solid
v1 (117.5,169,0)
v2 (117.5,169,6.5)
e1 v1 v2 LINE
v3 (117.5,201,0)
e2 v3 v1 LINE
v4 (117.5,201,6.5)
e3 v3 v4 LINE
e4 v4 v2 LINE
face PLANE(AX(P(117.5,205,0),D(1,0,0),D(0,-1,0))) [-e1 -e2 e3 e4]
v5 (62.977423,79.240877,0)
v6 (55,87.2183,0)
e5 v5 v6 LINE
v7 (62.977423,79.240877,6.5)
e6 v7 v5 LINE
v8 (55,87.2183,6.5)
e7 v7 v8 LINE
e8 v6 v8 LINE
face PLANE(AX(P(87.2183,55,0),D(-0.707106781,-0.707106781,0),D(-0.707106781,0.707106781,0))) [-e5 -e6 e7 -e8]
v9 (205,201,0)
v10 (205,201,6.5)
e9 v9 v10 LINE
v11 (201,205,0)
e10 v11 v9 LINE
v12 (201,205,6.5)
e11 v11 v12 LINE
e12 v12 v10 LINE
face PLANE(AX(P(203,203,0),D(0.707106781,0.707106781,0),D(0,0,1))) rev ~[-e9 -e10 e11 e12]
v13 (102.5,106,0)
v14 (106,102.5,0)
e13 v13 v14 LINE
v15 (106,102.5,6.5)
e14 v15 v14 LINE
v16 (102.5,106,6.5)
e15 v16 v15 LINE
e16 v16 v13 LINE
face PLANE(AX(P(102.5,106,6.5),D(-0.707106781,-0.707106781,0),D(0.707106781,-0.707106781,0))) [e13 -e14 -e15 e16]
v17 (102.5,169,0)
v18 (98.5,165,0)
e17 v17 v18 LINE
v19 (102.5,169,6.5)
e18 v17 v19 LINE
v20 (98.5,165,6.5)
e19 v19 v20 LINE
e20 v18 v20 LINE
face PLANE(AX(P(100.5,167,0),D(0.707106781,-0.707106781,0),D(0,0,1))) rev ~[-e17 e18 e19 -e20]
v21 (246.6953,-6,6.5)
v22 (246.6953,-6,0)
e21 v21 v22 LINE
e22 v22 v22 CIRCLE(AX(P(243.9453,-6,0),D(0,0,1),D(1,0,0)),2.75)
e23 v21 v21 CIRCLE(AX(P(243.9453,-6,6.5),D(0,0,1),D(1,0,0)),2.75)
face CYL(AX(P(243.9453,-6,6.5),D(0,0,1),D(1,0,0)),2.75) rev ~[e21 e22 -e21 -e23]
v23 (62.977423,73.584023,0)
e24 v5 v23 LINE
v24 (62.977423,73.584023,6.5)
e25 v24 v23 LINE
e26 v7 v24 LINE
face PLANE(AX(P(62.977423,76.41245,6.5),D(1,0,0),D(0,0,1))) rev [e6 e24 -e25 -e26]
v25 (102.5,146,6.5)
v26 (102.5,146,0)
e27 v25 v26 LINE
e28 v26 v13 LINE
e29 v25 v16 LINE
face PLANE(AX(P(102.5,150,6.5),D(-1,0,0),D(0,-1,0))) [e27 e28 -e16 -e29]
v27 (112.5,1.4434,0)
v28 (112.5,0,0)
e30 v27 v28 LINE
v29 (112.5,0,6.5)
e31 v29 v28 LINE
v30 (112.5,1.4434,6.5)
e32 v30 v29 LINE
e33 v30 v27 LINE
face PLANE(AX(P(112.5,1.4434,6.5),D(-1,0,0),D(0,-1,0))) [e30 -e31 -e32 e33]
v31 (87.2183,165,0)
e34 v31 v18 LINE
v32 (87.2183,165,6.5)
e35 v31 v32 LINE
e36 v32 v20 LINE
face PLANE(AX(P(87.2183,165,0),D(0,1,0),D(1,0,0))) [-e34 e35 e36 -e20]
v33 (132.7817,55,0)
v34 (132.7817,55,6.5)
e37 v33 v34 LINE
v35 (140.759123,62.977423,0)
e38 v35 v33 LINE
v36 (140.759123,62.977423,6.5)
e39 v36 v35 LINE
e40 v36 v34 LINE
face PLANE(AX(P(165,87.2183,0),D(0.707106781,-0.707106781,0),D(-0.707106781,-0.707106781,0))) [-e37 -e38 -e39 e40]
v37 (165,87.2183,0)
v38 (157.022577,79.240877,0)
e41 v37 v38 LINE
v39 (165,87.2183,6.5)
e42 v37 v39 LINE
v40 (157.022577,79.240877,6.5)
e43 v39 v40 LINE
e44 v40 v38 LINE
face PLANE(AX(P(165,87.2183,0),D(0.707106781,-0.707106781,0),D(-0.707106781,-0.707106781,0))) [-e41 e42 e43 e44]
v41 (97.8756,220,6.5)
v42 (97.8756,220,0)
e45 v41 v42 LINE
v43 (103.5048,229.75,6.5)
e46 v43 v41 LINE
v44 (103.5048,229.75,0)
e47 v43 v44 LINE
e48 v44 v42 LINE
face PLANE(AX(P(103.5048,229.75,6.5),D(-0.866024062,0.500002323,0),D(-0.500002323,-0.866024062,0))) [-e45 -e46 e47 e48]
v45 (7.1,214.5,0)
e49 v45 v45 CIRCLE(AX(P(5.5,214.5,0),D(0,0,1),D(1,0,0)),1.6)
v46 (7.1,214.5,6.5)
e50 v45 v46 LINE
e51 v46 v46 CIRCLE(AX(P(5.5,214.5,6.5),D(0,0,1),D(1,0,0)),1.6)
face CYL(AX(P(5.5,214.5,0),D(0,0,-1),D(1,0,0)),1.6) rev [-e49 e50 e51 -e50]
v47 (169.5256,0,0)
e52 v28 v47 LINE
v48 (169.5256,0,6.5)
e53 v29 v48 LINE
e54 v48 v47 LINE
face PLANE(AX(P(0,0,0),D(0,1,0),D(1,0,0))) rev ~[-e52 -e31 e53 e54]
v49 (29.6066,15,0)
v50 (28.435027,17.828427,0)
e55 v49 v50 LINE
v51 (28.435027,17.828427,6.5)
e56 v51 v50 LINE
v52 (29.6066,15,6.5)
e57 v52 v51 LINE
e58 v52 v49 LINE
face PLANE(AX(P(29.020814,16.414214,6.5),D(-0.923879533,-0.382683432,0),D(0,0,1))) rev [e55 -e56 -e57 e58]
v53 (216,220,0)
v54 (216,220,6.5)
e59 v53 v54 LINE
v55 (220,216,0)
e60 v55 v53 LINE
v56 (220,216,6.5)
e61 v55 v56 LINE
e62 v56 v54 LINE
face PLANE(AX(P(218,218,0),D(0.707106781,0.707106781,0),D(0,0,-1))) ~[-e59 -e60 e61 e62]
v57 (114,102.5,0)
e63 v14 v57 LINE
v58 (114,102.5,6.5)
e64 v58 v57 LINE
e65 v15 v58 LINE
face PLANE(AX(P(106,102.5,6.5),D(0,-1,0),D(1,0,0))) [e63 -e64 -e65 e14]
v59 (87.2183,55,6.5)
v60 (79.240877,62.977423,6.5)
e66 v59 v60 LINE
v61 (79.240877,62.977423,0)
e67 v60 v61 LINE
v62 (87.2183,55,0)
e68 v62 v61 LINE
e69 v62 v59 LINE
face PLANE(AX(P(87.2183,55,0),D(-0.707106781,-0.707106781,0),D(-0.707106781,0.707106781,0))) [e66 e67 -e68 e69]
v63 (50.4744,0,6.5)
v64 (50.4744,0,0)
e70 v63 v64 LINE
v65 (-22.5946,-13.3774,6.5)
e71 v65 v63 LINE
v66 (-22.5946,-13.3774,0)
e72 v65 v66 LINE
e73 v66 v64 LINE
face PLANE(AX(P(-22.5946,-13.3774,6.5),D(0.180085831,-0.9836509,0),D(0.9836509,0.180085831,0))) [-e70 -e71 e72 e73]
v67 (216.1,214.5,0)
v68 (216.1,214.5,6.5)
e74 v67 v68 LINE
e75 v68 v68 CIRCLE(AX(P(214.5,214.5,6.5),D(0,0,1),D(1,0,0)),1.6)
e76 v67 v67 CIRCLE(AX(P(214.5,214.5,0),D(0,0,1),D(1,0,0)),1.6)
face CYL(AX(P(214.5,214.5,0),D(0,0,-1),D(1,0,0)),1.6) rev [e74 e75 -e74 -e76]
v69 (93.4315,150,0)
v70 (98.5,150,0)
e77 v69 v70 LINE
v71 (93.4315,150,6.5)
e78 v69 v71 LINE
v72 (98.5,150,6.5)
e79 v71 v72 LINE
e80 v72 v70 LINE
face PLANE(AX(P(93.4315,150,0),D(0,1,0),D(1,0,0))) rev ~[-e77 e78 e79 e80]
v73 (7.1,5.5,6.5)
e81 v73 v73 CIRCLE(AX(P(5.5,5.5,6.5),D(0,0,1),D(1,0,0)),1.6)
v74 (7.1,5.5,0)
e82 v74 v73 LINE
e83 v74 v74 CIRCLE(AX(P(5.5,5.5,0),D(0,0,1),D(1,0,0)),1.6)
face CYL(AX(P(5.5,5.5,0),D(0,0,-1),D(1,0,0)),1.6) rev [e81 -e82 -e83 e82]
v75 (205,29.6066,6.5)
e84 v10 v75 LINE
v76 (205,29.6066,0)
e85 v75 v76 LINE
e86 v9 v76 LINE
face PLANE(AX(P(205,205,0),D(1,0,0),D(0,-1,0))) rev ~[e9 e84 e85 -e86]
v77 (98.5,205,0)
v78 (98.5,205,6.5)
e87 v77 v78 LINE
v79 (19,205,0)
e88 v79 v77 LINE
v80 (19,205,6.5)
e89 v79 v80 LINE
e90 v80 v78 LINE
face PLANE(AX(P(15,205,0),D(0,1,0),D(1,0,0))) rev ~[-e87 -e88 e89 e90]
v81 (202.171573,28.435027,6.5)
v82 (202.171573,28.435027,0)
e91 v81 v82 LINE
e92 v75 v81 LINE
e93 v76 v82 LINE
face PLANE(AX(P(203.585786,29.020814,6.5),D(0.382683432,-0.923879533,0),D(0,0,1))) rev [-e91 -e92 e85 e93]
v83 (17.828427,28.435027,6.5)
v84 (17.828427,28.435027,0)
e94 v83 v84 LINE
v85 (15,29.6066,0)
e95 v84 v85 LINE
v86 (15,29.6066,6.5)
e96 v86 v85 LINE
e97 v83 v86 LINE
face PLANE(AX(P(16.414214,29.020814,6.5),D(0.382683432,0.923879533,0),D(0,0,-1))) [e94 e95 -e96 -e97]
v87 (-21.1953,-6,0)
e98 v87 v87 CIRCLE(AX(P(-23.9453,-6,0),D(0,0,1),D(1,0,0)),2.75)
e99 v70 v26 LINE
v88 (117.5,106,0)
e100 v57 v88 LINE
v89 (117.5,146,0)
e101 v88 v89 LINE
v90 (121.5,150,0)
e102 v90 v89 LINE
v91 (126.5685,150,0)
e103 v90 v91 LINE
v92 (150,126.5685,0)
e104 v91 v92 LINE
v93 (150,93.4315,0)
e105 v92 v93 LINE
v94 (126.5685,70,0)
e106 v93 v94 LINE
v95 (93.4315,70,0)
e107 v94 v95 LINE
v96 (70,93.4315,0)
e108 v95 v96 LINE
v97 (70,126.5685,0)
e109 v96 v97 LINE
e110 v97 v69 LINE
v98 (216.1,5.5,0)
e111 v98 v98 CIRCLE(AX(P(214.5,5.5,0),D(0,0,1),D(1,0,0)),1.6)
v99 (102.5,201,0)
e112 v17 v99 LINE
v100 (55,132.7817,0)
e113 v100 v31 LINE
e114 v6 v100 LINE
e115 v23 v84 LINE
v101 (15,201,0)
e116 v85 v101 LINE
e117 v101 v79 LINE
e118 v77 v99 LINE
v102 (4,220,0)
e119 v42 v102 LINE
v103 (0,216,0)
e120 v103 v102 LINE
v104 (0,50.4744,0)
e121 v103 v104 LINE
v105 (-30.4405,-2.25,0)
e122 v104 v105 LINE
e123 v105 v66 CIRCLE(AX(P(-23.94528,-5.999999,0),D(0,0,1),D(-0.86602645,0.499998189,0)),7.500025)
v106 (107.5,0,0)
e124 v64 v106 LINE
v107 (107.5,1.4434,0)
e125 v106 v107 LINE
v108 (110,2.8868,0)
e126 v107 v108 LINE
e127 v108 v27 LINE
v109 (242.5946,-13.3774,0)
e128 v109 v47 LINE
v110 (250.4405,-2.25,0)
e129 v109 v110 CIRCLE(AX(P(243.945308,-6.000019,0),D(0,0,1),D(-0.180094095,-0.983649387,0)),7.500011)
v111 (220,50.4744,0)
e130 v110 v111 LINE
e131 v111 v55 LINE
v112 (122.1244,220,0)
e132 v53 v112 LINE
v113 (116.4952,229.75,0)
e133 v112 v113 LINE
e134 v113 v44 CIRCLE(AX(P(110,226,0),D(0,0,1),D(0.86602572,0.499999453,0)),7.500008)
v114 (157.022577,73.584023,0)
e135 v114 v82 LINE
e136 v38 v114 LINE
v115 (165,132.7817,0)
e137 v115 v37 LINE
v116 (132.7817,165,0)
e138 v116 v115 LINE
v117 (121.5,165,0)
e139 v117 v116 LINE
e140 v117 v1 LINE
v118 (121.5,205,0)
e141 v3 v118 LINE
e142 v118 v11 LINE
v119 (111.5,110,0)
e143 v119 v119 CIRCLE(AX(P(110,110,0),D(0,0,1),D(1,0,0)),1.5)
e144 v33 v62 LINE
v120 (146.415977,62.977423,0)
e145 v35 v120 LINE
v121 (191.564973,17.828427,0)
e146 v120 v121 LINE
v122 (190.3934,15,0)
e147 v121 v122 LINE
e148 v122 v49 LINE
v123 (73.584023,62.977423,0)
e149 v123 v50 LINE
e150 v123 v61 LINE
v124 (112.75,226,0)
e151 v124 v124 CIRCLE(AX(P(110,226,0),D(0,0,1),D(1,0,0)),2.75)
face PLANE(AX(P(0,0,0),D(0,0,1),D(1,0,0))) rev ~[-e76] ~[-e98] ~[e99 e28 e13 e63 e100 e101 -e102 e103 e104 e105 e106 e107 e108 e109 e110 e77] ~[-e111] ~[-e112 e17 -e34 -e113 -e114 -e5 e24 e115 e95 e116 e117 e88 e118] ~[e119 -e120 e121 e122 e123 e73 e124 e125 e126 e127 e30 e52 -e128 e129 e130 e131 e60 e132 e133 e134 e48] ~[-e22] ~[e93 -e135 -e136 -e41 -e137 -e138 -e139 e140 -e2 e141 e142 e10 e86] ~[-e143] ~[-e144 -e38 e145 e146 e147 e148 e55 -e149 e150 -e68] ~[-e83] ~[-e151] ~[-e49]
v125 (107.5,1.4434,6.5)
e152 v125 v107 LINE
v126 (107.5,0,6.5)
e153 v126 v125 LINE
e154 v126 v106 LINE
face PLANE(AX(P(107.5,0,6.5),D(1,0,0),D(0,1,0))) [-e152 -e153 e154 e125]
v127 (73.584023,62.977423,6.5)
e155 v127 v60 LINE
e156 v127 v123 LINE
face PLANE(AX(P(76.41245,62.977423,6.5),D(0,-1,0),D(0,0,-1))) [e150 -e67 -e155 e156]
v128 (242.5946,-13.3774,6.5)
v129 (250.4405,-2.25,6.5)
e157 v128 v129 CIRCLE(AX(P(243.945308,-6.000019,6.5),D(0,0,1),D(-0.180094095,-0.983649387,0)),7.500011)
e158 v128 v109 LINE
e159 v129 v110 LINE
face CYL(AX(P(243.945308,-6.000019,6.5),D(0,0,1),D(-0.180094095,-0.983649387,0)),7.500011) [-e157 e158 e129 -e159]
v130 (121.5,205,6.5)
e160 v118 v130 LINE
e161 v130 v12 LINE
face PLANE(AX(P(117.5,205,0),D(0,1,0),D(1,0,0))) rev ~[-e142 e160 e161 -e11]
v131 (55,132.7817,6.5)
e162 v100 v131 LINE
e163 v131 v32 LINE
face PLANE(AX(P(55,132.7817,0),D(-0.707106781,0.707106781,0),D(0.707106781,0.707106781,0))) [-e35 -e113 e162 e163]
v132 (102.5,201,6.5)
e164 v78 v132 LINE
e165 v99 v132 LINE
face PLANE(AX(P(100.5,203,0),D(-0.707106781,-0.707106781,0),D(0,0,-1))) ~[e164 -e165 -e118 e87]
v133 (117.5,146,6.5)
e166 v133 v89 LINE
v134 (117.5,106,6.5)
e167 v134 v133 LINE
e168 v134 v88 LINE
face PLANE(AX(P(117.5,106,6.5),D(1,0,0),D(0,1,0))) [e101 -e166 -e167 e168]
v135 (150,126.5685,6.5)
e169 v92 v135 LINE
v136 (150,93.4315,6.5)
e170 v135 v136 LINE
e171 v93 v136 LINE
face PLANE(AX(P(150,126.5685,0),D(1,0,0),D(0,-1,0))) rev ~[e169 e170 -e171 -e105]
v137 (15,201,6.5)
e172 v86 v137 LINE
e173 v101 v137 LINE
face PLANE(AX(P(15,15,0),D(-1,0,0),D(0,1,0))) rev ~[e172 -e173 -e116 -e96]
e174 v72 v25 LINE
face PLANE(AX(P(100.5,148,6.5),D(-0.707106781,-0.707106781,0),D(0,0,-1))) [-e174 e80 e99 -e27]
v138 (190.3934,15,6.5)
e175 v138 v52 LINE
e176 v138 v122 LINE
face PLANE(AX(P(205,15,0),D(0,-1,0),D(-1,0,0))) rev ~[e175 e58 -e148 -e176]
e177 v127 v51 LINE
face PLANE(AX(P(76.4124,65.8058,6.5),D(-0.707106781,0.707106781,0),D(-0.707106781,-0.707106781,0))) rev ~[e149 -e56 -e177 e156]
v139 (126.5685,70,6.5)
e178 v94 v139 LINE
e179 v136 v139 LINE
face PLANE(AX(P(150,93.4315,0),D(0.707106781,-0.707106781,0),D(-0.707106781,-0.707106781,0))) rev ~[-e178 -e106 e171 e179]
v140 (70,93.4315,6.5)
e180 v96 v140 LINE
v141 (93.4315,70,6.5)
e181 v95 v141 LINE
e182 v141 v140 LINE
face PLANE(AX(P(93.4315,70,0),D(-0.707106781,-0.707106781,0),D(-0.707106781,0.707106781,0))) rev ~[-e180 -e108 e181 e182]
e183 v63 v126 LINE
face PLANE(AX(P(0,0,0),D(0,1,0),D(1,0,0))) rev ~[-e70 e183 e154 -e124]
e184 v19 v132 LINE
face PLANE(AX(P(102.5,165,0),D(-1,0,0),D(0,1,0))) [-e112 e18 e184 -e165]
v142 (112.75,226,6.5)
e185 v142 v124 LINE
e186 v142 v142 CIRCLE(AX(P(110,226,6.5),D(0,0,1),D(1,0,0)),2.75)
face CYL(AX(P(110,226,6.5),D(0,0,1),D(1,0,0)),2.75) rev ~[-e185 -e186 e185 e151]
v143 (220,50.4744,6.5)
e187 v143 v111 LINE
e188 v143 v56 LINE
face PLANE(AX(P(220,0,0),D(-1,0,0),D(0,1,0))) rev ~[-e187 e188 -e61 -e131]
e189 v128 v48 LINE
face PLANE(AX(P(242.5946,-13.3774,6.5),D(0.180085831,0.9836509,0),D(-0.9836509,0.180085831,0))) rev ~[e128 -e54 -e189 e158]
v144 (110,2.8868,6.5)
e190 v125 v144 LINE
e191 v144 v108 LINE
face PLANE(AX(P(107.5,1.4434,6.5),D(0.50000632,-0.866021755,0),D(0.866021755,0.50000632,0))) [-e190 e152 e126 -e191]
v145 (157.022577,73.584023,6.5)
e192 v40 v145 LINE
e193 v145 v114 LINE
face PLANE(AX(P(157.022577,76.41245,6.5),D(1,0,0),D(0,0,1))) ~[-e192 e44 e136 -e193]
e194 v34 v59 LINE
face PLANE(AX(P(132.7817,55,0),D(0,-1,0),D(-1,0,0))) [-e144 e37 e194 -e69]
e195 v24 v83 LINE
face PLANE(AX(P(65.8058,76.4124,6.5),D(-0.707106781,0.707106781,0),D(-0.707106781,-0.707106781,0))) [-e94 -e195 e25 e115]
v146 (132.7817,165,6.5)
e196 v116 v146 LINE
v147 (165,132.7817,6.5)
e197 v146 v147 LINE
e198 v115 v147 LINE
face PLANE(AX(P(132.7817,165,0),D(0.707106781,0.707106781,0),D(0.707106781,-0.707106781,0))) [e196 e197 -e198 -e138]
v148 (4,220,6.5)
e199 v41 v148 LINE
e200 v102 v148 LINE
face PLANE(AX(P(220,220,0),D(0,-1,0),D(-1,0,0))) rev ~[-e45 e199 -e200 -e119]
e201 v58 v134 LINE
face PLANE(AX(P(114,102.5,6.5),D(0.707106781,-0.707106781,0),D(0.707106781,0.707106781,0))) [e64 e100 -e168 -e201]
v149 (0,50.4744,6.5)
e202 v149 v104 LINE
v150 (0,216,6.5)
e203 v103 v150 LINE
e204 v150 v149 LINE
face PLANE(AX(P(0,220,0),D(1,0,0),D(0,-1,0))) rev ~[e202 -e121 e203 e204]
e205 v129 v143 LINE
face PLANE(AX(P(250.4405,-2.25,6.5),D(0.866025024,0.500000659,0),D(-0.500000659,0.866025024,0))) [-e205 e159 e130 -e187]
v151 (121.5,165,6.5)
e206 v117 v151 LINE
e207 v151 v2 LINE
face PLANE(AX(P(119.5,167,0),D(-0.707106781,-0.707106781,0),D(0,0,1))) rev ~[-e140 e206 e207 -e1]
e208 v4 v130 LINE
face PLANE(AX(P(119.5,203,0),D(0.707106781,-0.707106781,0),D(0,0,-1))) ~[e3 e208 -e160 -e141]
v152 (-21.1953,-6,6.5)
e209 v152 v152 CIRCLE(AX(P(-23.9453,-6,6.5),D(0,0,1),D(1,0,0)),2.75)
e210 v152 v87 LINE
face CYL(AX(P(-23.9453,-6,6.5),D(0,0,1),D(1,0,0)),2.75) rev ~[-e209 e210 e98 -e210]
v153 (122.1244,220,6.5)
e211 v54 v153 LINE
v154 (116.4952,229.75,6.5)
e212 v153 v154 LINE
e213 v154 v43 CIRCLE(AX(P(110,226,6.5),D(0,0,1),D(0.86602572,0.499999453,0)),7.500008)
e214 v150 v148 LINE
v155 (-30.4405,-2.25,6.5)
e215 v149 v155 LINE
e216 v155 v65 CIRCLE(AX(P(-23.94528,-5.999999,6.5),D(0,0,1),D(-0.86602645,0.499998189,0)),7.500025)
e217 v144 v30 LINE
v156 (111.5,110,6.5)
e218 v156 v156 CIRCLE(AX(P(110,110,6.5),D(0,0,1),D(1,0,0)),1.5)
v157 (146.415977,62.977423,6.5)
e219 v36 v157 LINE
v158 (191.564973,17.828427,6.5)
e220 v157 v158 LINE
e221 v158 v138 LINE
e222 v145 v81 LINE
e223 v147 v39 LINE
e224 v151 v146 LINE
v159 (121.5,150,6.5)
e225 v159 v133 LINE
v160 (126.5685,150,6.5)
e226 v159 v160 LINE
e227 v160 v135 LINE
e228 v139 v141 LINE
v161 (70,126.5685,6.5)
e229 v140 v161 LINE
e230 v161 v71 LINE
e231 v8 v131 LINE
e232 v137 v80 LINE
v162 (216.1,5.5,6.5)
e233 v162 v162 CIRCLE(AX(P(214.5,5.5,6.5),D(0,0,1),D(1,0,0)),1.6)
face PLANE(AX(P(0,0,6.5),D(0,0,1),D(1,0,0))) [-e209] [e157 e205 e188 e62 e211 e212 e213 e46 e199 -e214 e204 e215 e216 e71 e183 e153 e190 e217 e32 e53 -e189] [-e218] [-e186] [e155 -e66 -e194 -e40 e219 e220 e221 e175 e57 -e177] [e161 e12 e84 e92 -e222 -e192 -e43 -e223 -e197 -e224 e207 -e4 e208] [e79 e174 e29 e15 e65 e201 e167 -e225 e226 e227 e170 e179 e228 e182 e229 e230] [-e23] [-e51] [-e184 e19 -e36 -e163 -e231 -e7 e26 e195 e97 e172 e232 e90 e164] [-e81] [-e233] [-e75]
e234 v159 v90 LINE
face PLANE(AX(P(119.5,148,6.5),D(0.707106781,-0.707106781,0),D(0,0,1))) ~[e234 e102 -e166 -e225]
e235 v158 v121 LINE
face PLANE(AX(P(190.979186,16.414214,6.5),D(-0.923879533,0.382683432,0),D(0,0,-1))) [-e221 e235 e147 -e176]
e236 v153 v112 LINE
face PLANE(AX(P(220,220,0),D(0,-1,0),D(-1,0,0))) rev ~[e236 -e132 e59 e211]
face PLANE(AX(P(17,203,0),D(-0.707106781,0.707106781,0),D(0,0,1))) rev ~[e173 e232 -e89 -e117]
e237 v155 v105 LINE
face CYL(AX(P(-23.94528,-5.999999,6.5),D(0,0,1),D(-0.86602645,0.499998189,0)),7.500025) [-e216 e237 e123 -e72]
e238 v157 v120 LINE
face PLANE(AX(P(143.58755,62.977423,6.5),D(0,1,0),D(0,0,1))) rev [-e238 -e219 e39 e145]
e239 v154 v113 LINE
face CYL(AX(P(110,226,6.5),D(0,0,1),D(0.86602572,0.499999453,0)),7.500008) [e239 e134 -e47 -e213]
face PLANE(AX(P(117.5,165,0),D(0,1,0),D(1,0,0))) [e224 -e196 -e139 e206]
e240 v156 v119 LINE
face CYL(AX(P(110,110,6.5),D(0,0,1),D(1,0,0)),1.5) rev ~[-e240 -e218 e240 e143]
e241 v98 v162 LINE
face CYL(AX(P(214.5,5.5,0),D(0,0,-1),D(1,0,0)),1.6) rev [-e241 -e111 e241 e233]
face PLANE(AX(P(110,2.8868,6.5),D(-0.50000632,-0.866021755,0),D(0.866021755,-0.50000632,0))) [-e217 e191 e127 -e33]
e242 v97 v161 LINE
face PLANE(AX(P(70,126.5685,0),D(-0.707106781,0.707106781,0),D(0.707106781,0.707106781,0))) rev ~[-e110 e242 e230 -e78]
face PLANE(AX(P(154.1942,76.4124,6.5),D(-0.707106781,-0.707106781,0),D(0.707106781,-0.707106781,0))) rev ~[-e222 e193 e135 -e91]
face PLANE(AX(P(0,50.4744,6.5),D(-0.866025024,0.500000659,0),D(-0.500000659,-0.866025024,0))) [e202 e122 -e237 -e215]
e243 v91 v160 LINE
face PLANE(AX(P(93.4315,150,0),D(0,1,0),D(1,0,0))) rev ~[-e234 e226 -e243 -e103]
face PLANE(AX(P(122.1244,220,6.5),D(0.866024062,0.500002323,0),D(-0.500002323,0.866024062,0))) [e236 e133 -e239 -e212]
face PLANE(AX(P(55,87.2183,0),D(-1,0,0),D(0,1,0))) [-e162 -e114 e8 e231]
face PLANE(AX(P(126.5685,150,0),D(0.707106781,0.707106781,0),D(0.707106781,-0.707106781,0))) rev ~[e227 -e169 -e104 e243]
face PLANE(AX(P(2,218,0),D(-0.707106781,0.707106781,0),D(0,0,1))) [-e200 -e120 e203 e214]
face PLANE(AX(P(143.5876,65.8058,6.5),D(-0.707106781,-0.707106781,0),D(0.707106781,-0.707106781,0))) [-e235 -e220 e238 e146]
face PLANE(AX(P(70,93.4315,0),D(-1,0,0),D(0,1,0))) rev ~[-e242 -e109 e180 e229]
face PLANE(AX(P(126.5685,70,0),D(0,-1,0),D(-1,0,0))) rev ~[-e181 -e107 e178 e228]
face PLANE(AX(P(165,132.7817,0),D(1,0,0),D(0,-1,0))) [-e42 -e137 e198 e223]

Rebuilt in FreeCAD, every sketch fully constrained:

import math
import FreeCAD as App
import Part
import Sketcher
Q = App.Units.Quantity


def edges_at(feature, points):
    """Names of the edges that pass closest to the given points."""
    edges = feature.Shape.Edges
    near = lambda p: min(range(len(edges)), key=lambda i: edges[i].distToShape(Part.Vertex(*p))[0])
    return sorted({f"Edge{near(p) + 1}" for p in points})

doc = App.newDocument("Part")
params = doc.addObject("Spreadsheet::Sheet", "Params")
for row, (alias, value) in enumerate([
    ("sketch1_diameter", "3.2 mm"),
    ("sketch1_width", "220 mm"),
    ("sketch1_height", "40 mm"),
    ("pad1_length", "6.5 mm"),
    ("sketch2_length", "15 mm"),
    ("pad2_length", "6.5 mm"),
    ("sketch3_diameter", "5.5 mm"),
    ("sketch3_radius", "7.5 mm"),
    ("pad3_length", "6.5 mm"),
    ("chamfer_size", "4 mm"),
    ("sketch4_diameter", "3 mm"),
    ("sketch4_width", "8 mm"),
    ("sketch4_height", "44 mm"),
    ("pad4_length", "6.5 mm"),
    ("chamfer2_size", "4 mm"),
    ("sketch5_width", "5 mm"),
], start=1):
    params.set(f"A{row}", alias)
    params.set(f"B{row}", "=" + value)
    params.setAlias(f"B{row}", alias)

body = doc.addObject("PartDesign::Body", "Body")

# Sketch on XY plane
sketch1 = body.newObject("Sketcher::SketchObject", "Sketch")
sketch1.AttachmentSupport = (doc.getObject("XY_Plane"), [""])
sketch1.MapMode = "FlatFace"
sketch1.addGeometry(Part.LineSegment(App.Vector(0, 220, 0), App.Vector(0, 0, 0)), False)
sketch1.addGeometry(Part.LineSegment(App.Vector(0, 0, 0), App.Vector(220, 0, 0)), False)
sketch1.addGeometry(Part.LineSegment(App.Vector(220, 0, 0), App.Vector(220, 220, 0)), False)
sketch1.addGeometry(Part.LineSegment(App.Vector(220, 220, 0), App.Vector(0, 220, 0)), False)
sketch1.addGeometry(Part.Circle(App.Vector(5.5, 5.5, 0), App.Vector(0, 0, 1), 1.6), False)
sketch1.addGeometry(Part.Circle(App.Vector(214.5, 5.5, 0), App.Vector(0, 0, 1), 1.6), False)
sketch1.addGeometry(Part.Circle(App.Vector(5.5, 214.5, 0), App.Vector(0, 0, 1), 1.6), False)
sketch1.addGeometry(Part.LineSegment(App.Vector(126.6, 150, 0), App.Vector(150, 126.6, 0)), False)
sketch1.addGeometry(Part.LineSegment(App.Vector(150, 126.6, 0), App.Vector(150, 93.4, 0)), False)
sketch1.addGeometry(Part.LineSegment(App.Vector(150, 93.4, 0), App.Vector(126.6, 70, 0)), False)
sketch1.addGeometry(Part.LineSegment(App.Vector(126.6, 70, 0), App.Vector(93.4, 70, 0)), False)
sketch1.addGeometry(Part.LineSegment(App.Vector(93.4, 70, 0), App.Vector(70, 93.4, 0)), False)
sketch1.addGeometry(Part.LineSegment(App.Vector(70, 93.4, 0), App.Vector(70, 126.6, 0)), False)
sketch1.addGeometry(Part.LineSegment(App.Vector(70, 126.6, 0), App.Vector(93.4, 150, 0)), False)
sketch1.addGeometry(Part.LineSegment(App.Vector(93.4, 150, 0), App.Vector(126.6, 150, 0)), False)
sketch1.addGeometry(Part.LineSegment(App.Vector(132.8, 55, 0), App.Vector(165, 87.2, 0)), False)
sketch1.addGeometry(Part.LineSegment(App.Vector(165, 87.2, 0), App.Vector(165, 132.8, 0)), False)
sketch1.addGeometry(Part.LineSegment(App.Vector(165, 132.8, 0), App.Vector(132.8, 165, 0)), False)
sketch1.addGeometry(Part.LineSegment(App.Vector(132.8, 165, 0), App.Vector(117.5, 165, 0)), False)
sketch1.addGeometry(Part.LineSegment(App.Vector(117.5, 165, 0), App.Vector(117.5, 205, 0)), False)
sketch1.addGeometry(Part.LineSegment(App.Vector(117.5, 205, 0), App.Vector(205, 205, 0)), False)
sketch1.addGeometry(Part.LineSegment(App.Vector(205, 205, 0), App.Vector(205, 15, 0)), False)
sketch1.addGeometry(Part.LineSegment(App.Vector(205, 15, 0), App.Vector(15, 15, 0)), False)
sketch1.addGeometry(Part.LineSegment(App.Vector(15, 15, 0), App.Vector(15, 205, 0)), False)
sketch1.addGeometry(Part.LineSegment(App.Vector(15, 205, 0), App.Vector(102.5, 205, 0)), False)
sketch1.addGeometry(Part.LineSegment(App.Vector(102.5, 205, 0), App.Vector(102.5, 165, 0)), False)
sketch1.addGeometry(Part.LineSegment(App.Vector(102.5, 165, 0), App.Vector(87.2, 165, 0)), False)
sketch1.addGeometry(Part.LineSegment(App.Vector(87.2, 165, 0), App.Vector(55, 132.8, 0)), False)
sketch1.addGeometry(Part.LineSegment(App.Vector(55, 132.8, 0), App.Vector(55, 87.2, 0)), False)
sketch1.addGeometry(Part.LineSegment(App.Vector(55, 87.2, 0), App.Vector(87.2, 55, 0)), False)
sketch1.addGeometry(Part.LineSegment(App.Vector(87.2, 55, 0), App.Vector(132.8, 55, 0)), False)
sketch1.addGeometry(Part.Circle(App.Vector(214.5, 214.5, 0), App.Vector(0, 0, 1), 1.6), False)
sketch1.addConstraint(Sketcher.Constraint("Coincident", 0, 2, 1, 1))
sketch1.addConstraint(Sketcher.Constraint("Coincident", 1, 2, 2, 1))
sketch1.addConstraint(Sketcher.Constraint("Coincident", 2, 2, 3, 1))
sketch1.addConstraint(Sketcher.Constraint("Coincident", 3, 2, 0, 1))
sketch1.addConstraint(Sketcher.Constraint("Coincident", 7, 2, 8, 1))
sketch1.addConstraint(Sketcher.Constraint("Coincident", 8, 2, 9, 1))
sketch1.addConstraint(Sketcher.Constraint("Coincident", 9, 2, 10, 1))
sketch1.addConstraint(Sketcher.Constraint("Coincident", 10, 2, 11, 1))
sketch1.addConstraint(Sketcher.Constraint("Coincident", 11, 2, 12, 1))
sketch1.addConstraint(Sketcher.Constraint("Coincident", 12, 2, 13, 1))
sketch1.addConstraint(Sketcher.Constraint("Coincident", 13, 2, 14, 1))
sketch1.addConstraint(Sketcher.Constraint("Coincident", 14, 2, 7, 1))
sketch1.addConstraint(Sketcher.Constraint("Coincident", 15, 2, 16, 1))
sketch1.addConstraint(Sketcher.Constraint("Coincident", 16, 2, 17, 1))
sketch1.addConstraint(Sketcher.Constraint("Coincident", 17, 2, 18, 1))
sketch1.addConstraint(Sketcher.Constraint("Coincident", 18, 2, 19, 1))
sketch1.addConstraint(Sketcher.Constraint("Coincident", 19, 2, 20, 1))
sketch1.addConstraint(Sketcher.Constraint("Coincident", 20, 2, 21, 1))
sketch1.addConstraint(Sketcher.Constraint("Coincident", 21, 2, 22, 1))
sketch1.addConstraint(Sketcher.Constraint("Coincident", 22, 2, 23, 1))
sketch1.addConstraint(Sketcher.Constraint("Coincident", 23, 2, 24, 1))
sketch1.addConstraint(Sketcher.Constraint("Coincident", 24, 2, 25, 1))
sketch1.addConstraint(Sketcher.Constraint("Coincident", 25, 2, 26, 1))
sketch1.addConstraint(Sketcher.Constraint("Coincident", 26, 2, 27, 1))
sketch1.addConstraint(Sketcher.Constraint("Coincident", 27, 2, 28, 1))
sketch1.addConstraint(Sketcher.Constraint("Coincident", 28, 2, 29, 1))
sketch1.addConstraint(Sketcher.Constraint("Coincident", 29, 2, 30, 1))
sketch1.addConstraint(Sketcher.Constraint("Coincident", 30, 2, 15, 1))
sketch1.addConstraint(Sketcher.Constraint("Vertical", 0))
sketch1.addConstraint(Sketcher.Constraint("Horizontal", 1))
sketch1.addConstraint(Sketcher.Constraint("Vertical", 2))
sketch1.addConstraint(Sketcher.Constraint("Horizontal", 3))
sketch1.addConstraint(Sketcher.Constraint("Vertical", 8))
sketch1.addConstraint(Sketcher.Constraint("Horizontal", 10))
sketch1.addConstraint(Sketcher.Constraint("Vertical", 12))
sketch1.addConstraint(Sketcher.Constraint("Horizontal", 14))
sketch1.addConstraint(Sketcher.Constraint("Vertical", 16))
sketch1.addConstraint(Sketcher.Constraint("Horizontal", 18))
sketch1.addConstraint(Sketcher.Constraint("Vertical", 19))
sketch1.addConstraint(Sketcher.Constraint("Horizontal", 20))
sketch1.addConstraint(Sketcher.Constraint("Vertical", 21))
sketch1.addConstraint(Sketcher.Constraint("Horizontal", 22))
sketch1.addConstraint(Sketcher.Constraint("Vertical", 23))
sketch1.addConstraint(Sketcher.Constraint("Horizontal", 24))
sketch1.addConstraint(Sketcher.Constraint("Vertical", 25))
sketch1.addConstraint(Sketcher.Constraint("Horizontal", 26))
sketch1.addConstraint(Sketcher.Constraint("Vertical", 28))
sketch1.addConstraint(Sketcher.Constraint("Horizontal", 30))
sketch1.addConstraint(Sketcher.Constraint("Coincident", 0, 2, -1, 1))
sketch1.addConstraint(Sketcher.Constraint("Equal", 4, 5))
sketch1.addConstraint(Sketcher.Constraint("Equal", 5, 6))
sketch1.addConstraint(Sketcher.Constraint("Equal", 6, 31))
sketch1.addConstraint(Sketcher.Constraint("Perpendicular", 7, 9))
sketch1.addConstraint(Sketcher.Constraint("Perpendicular", 9, 11))
sketch1.addConstraint(Sketcher.Constraint("Perpendicular", 11, 13))
sketch1.addConstraint(Sketcher.Constraint("Parallel", 13, 15))
sketch1.addConstraint(Sketcher.Constraint("Perpendicular", 15, 17))
sketch1.addConstraint(Sketcher.Constraint("Perpendicular", 17, 27))
sketch1.addConstraint(Sketcher.Constraint("Perpendicular", 27, 29))
sketch1.addConstraint(Sketcher.Constraint("Horizontal", 4, 3, 5, 3))
sketch1.addConstraint(Sketcher.Constraint("Horizontal", 6, 3, 31, 3))
sketch1.addConstraint(Sketcher.Constraint("Horizontal", 8, 2, 11, 2))
sketch1.addConstraint(Sketcher.Constraint("Horizontal", 7, 2, 12, 2))
sketch1.addConstraint(Sketcher.Constraint("Horizontal", 20, 2, 23, 2))
sketch1.addConstraint(Sketcher.Constraint("Horizontal", 18, 2, 25, 2))
sketch1.addConstraint(Sketcher.Constraint("Horizontal", 16, 2, 27, 2))
sketch1.addConstraint(Sketcher.Constraint("Horizontal", 15, 2, 28, 2))
sketch1.addConstraint(Sketcher.Constraint("Vertical", 4, 3, 6, 3))
sketch1.addConstraint(Sketcher.Constraint("Vertical", 5, 3, 31, 3))
sketch1.addConstraint(Sketcher.Constraint("Vertical", 10, 2, 13, 2))
sketch1.addConstraint(Sketcher.Constraint("Vertical", 9, 2, 14, 2))
sketch1.addConstraint(Sketcher.Constraint("Vertical", 26, 2, 29, 2))
sketch1.addConstraint(Sketcher.Constraint("Equal", 20, 24))
sketch1.addConstraint(Sketcher.Constraint("Equal", 18, 26))
sketch1.addConstraint(Sketcher.Constraint("Equal", 3, 0))
sketch1.addConstraint(Sketcher.Constraint("Equal", 14, 8))
sketch1.addConstraint(Sketcher.Constraint("Equal", 30, 16))
sketch1.addConstraint(Sketcher.Constraint("Equal", 22, 21))
sketch1.addConstraint(Sketcher.Constraint("Diameter", 4, Q("3.2 mm")))
sketch1.addConstraint(Sketcher.Constraint("DistanceX", 1, 1, 1, 2, Q("220 mm")))
sketch1.addConstraint(Sketcher.Constraint("DistanceY", -1, 1, 21, 2, Q("15 mm")))
sketch1.addConstraint(Sketcher.Constraint("DistanceX", -1, 1, 22, 2, Q("15 mm")))
sketch1.addConstraint(Sketcher.Constraint("DistanceX", 4, 3, 5, 3, Q("209 mm")))
sketch1.addConstraint(Sketcher.Constraint("DistanceY", 4, 3, 6, 3, Q("209 mm")))
sketch1.addConstraint(Sketcher.Constraint("DistanceX", 11, 2, 8, 2, Q("80 mm")))
sketch1.addConstraint(Sketcher.Constraint("DistanceX", 8, 2, 15, 2, Q("15 mm")))
sketch1.addConstraint(Sketcher.Constraint("DistanceY", 14, 2, 17, 2, Q("15 mm")))
sketch1.addConstraint(Sketcher.Constraint("DistanceX", 20, 2, 2, 2, Q("15 mm")))
sketch1.addConstraint(Sketcher.Constraint("DistanceX", 24, 2, 19, 2, Q("15 mm")))
sketch1.addConstraint(Sketcher.Constraint("DistanceX", 27, 2, 12, 2, Q("15 mm")))
sketch1.addConstraint(Sketcher.Constraint("DistanceY", 19, 1, 19, 2, Q("40 mm")))
sketch1.addConstraint(Sketcher.Constraint("DistanceX", -1, 1, 4, 3, Q("5.5 mm")))
sketch1.addConstraint(Sketcher.Constraint("DistanceY", -1, 1, 4, 3, Q("5.5 mm")))
sketch1.addConstraint(Sketcher.Constraint("DistanceX", 10, 2, 10, 1, Q("33.137 mm")))
sketch1.addConstraint(Sketcher.Constraint("DistanceX", 18, 2, 18, 1, Q("15.2817 mm")))
sketch1.setExpression("Constraints[78]", "Params.sketch1_diameter")
sketch1.setExpression("Constraints[79]", "Params.sketch1_width")
sketch1.setExpression("Constraints[90]", "Params.sketch1_height")
pad1 = body.newObject("PartDesign::Pad", "Pad")
pad1.Profile = sketch1
pad1.setExpression("Length", "Params.pad1_length")

# Sketch on XY plane
sketch2 = body.newObject("Sketcher::SketchObject", "Sketch001")
sketch2.AttachmentSupport = (doc.getObject("XY_Plane"), [""])
sketch2.MapMode = "FlatFace"
sketch2.AttachmentOffset = App.Placement(App.Vector(0, 0, 6.5), App.Rotation())
sketch2.addGeometry(Part.LineSegment(App.Vector(15, 15, 0), App.Vector(26, 15, 0)), False)
sketch2.addGeometry(Part.LineSegment(App.Vector(26, 15, 0), App.Vector(76, 66, 0)), False)
sketch2.addGeometry(Part.LineSegment(App.Vector(76, 66, 0), App.Vector(66, 76, 0)), False)
sketch2.addGeometry(Part.LineSegment(App.Vector(66, 76, 0), App.Vector(15, 26, 0)), False)
sketch2.addGeometry(Part.LineSegment(App.Vector(15, 26, 0), App.Vector(15, 15, 0)), False)
sketch2.addGeometry(Part.LineSegment(App.Vector(205, 15, 0), App.Vector(205, 26, 0)), False)
sketch2.addGeometry(Part.LineSegment(App.Vector(205, 26, 0), App.Vector(154, 76, 0)), False)
sketch2.addGeometry(Part.LineSegment(App.Vector(154, 76, 0), App.Vector(144, 66, 0)), False)
sketch2.addGeometry(Part.LineSegment(App.Vector(144, 66, 0), App.Vector(194, 15, 0)), False)
sketch2.addGeometry(Part.LineSegment(App.Vector(194, 15, 0), App.Vector(205, 15, 0)), False)
sketch2.addConstraint(Sketcher.Constraint("Coincident", 0, 2, 1, 1))
sketch2.addConstraint(Sketcher.Constraint("Coincident", 1, 2, 2, 1))
sketch2.addConstraint(Sketcher.Constraint("Coincident", 2, 2, 3, 1))
sketch2.addConstraint(Sketcher.Constraint("Coincident", 3, 2, 4, 1))
sketch2.addConstraint(Sketcher.Constraint("Coincident", 4, 2, 0, 1))
sketch2.addConstraint(Sketcher.Constraint("Coincident", 5, 2, 6, 1))
sketch2.addConstraint(Sketcher.Constraint("Coincident", 6, 2, 7, 1))
sketch2.addConstraint(Sketcher.Constraint("Coincident", 7, 2, 8, 1))
sketch2.addConstraint(Sketcher.Constraint("Coincident", 8, 2, 9, 1))
sketch2.addConstraint(Sketcher.Constraint("Coincident", 9, 2, 5, 1))
sketch2.addConstraint(Sketcher.Constraint("Horizontal", 0))
sketch2.addConstraint(Sketcher.Constraint("Vertical", 4))
sketch2.addConstraint(Sketcher.Constraint("Vertical", 5))
sketch2.addConstraint(Sketcher.Constraint("Horizontal", 9))
sketch2.addConstraint(Sketcher.Constraint("Perpendicular", 1, 2))
sketch2.addConstraint(Sketcher.Constraint("Perpendicular", 2, 3))
sketch2.addConstraint(Sketcher.Constraint("Perpendicular", 3, 6))
sketch2.addConstraint(Sketcher.Constraint("Perpendicular", 6, 7))
sketch2.addConstraint(Sketcher.Constraint("Perpendicular", 7, 8))
sketch2.addConstraint(Sketcher.Constraint("Horizontal", 3, 2, 5, 2))
sketch2.addConstraint(Sketcher.Constraint("Horizontal", 2, 2, 6, 2))
sketch2.addConstraint(Sketcher.Constraint("Horizontal", 1, 2, 7, 2))
sketch2.addConstraint(Sketcher.Constraint("Horizontal", 4, 2, 8, 2))
sketch2.addConstraint(Sketcher.Constraint("Equal", 0, 9))
sketch2.addConstraint(Sketcher.Constraint("Equal", 9, 4))
sketch2.addConstraint(Sketcher.Constraint("Distance", 2, Q("15 mm")))
sketch2.addConstraint(Sketcher.Constraint("DistanceY", -1, 1, 0, 2, Q("15 mm")))
sketch2.addConstraint(Sketcher.Constraint("DistanceX", -1, 1, 3, 2, Q("15 mm")))
sketch2.addConstraint(Sketcher.Constraint("DistanceX", -1, 1, 5, 2, Q("205 mm")))
sketch2.addConstraint(Sketcher.Constraint("DistanceX", 0, 2, 7, 2, Q("117.981 mm")))
sketch2.setExpression("Constraints[25]", "Params.sketch2_length")
pad2 = body.newObject("PartDesign::Pad", "Pad001")
pad2.Profile = sketch2
pad2.setExpression("Length", "Params.pad2_length")
pad2.Reversed = True

# Sketch on XY plane
sketch3 = body.newObject("Sketcher::SketchObject", "Sketch002")
sketch3.AttachmentSupport = (doc.getObject("XY_Plane"), [""])
sketch3.MapMode = "FlatFace"
sketch3.AttachmentOffset = App.Placement(App.Vector(0, 0, 6.5), App.Rotation())
sketch3.addGeometry(Part.LineSegment(App.Vector(50.5, 0, 0), App.Vector(0, 0, 0)), False)
sketch3.addGeometry(Part.LineSegment(App.Vector(0, 0, 0), App.Vector(0, 50.5, 0)), False)
sketch3.addGeometry(Part.LineSegment(App.Vector(0, 50.5, 0), App.Vector(-30.4, -2.2, 0)), False)
sketch3.addGeometry(Part.ArcOfCircle(Part.Circle(App.Vector(-23.9, -6, 0), App.Vector(0, 0, 1), 7.5), math.radians(150), math.radians(280)), False)
sketch3.addGeometry(Part.LineSegment(App.Vector(-22.6, -13.4, 0), App.Vector(50.5, 0, 0)), False)
sketch3.addGeometry(Part.Circle(App.Vector(-23.9, -6, 0), App.Vector(0, 0, 1), 2.8), False)
sketch3.addGeometry(Part.LineSegment(App.Vector(220, 0, 0), App.Vector(169.5, 0, 0)), False)
sketch3.addGeometry(Part.LineSegment(App.Vector(169.5, 0, 0), App.Vector(242.6, -13.4, 0)), False)
sketch3.addGeometry(Part.ArcOfCircle(Part.Circle(App.Vector(243.9, -6, 0), App.Vector(0, 0, 1), 7.5), math.radians(-100), math.radians(30)), False)
sketch3.addGeometry(Part.LineSegment(App.Vector(250.4, -2.2, 0), App.Vector(220, 50.5, 0)), False)
sketch3.addGeometry(Part.LineSegment(App.Vector(220, 50.5, 0), App.Vector(220, 0, 0)), False)
sketch3.addGeometry(Part.Circle(App.Vector(243.9, -6, 0), App.Vector(0, 0, 1), 2.8), False)
sketch3.addGeometry(Part.LineSegment(App.Vector(103.5, 229.8, 0), App.Vector(97.9, 220, 0)), False)
sketch3.addGeometry(Part.LineSegment(App.Vector(97.9, 220, 0), App.Vector(122.1, 220, 0)), False)
sketch3.addGeometry(Part.LineSegment(App.Vector(122.1, 220, 0), App.Vector(116.5, 229.8, 0)), False)
sketch3.addGeometry(Part.ArcOfCircle(Part.Circle(App.Vector(110, 226, 0), App.Vector(0, 0, 1), 7.5), math.radians(30), math.radians(150)), False)
sketch3.addGeometry(Part.Circle(App.Vector(110, 226, 0), App.Vector(0, 0, 1), 2.8), False)
sketch3.addConstraint(Sketcher.Constraint("Coincident", 0, 2, 1, 1))
sketch3.addConstraint(Sketcher.Constraint("Coincident", 1, 2, 2, 1))
sketch3.addConstraint(Sketcher.Constraint("Tangent", 2, 2, 3, 1))
sketch3.addConstraint(Sketcher.Constraint("Tangent", 3, 2, 4, 1))
sketch3.addConstraint(Sketcher.Constraint("Coincident", 4, 2, 0, 1))
sketch3.addConstraint(Sketcher.Constraint("Coincident", 6, 2, 7, 1))
sketch3.addConstraint(Sketcher.Constraint("Tangent", 7, 2, 8, 1))
sketch3.addConstraint(Sketcher.Constraint("Tangent", 8, 2, 9, 1))
sketch3.addConstraint(Sketcher.Constraint("Coincident", 9, 2, 10, 1))
sketch3.addConstraint(Sketcher.Constraint("Coincident", 10, 2, 6, 1))
sketch3.addConstraint(Sketcher.Constraint("Coincident", 12, 2, 13, 1))
sketch3.addConstraint(Sketcher.Constraint("Coincident", 13, 2, 14, 1))
sketch3.addConstraint(Sketcher.Constraint("Tangent", 14, 2, 15, 1))
sketch3.addConstraint(Sketcher.Constraint("Tangent", 15, 2, 12, 1))
sketch3.addConstraint(Sketcher.Constraint("Horizontal", 0))
sketch3.addConstraint(Sketcher.Constraint("Vertical", 1))
sketch3.addConstraint(Sketcher.Constraint("Horizontal", 6))
sketch3.addConstraint(Sketcher.Constraint("Vertical", 10))
sketch3.addConstraint(Sketcher.Constraint("Horizontal", 13))
sketch3.addConstraint(Sketcher.Constraint("Coincident", 0, 2, -1, 1))
sketch3.addConstraint(Sketcher.Constraint("Coincident", 5, 3, 3, 3))
sketch3.addConstraint(Sketcher.Constraint("Coincident", 11, 3, 8, 3))
sketch3.addConstraint(Sketcher.Constraint("Coincident", 16, 3, 15, 3))
sketch3.addConstraint(Sketcher.Constraint("Equal", 3, 8))
sketch3.addConstraint(Sketcher.Constraint("Equal", 5, 11))
sketch3.addConstraint(Sketcher.Constraint("Equal", 8, 15))
sketch3.addConstraint(Sketcher.Constraint("Equal", 11, 16))
sketch3.addConstraint(Sketcher.Constraint("PointOnObject", 6, 2, -1))
sketch3.addConstraint(Sketcher.Constraint("Parallel", 2, 12))
sketch3.addConstraint(Sketcher.Constraint("Parallel", 9, 14))
sketch3.addConstraint(Sketcher.Constraint("Horizontal", 5, 3, 8, 3))
sketch3.addConstraint(Sketcher.Constraint("Horizontal", 2, 2, 8, 2))
sketch3.addConstraint(Sketcher.Constraint("Horizontal", 1, 2, 9, 2))
sketch3.addConstraint(Sketcher.Constraint("Equal", 0, 6))
sketch3.addConstraint(Sketcher.Constraint("Equal", 6, 1))
sketch3.addConstraint(Sketcher.Constraint("Diameter", 5, Q("5.5 mm")))
sketch3.addConstraint(Sketcher.Constraint("Radius", 3, Q("7.5 mm")))
sketch3.addConstraint(Sketcher.Constraint("DistanceY", 3, 3, -1, 1, Q("6 mm")))
sketch3.addConstraint(Sketcher.Constraint("DistanceY", 12, 2, 15, 3, Q("6 mm")))
sketch3.addConstraint(Sketcher.Constraint("Angle", 2, Q("-120 deg")))
sketch3.addConstraint(Sketcher.Constraint("DistanceX", -1, 1, 15, 3, Q("110 mm")))
sketch3.addConstraint(Sketcher.Constraint("DistanceY", -1, 1, 15, 3, Q("226 mm")))
sketch3.addConstraint(Sketcher.Constraint("DistanceX", -1, 1, 9, 2, Q("220 mm")))
sketch3.addConstraint(Sketcher.Constraint("Distance", 2, Q("60.881 mm")))
sketch3.setExpression("Constraints[35]", "Params.sketch3_diameter")
sketch3.setExpression("Constraints[36]", "Params.sketch3_radius")
pad3 = body.newObject("PartDesign::Pad", "Pad002")
pad3.Profile = sketch3
pad3.setExpression("Length", "Params.pad3_length")
pad3.Reversed = True
doc.recompute()

chamfer = body.newObject("PartDesign::Chamfer", "Chamfer")
chamfer.Base = (pad3, edges_at(pad3, [
    (25.607, 15, 3.25),
    (15, 25.607, 3.25),
    (76.412, 65.806, 3.25),
    (65.806, 76.412, 3.25),
    (194.393, 15, 3.25),
    (205, 25.607, 3.25),
    (143.588, 65.806, 3.25),
    (154.194, 76.412, 3.25),
    (117.5, 205, 3.25),
    (102.5, 205, 3.25),
    (117.5, 165, 3.25),
    (102.5, 165, 3.25),
    (205, 205, 3.25),
    (15, 205, 3.25),
    (0, 220, 3.25),
    (220, 220, 3.25),
]))
chamfer.setExpression("Size", "Params.chamfer_size")

# Sketch on XY plane
sketch4 = body.newObject("Sketcher::SketchObject", "Sketch003")
sketch4.AttachmentSupport = (doc.getObject("XY_Plane"), [""])
sketch4.MapMode = "FlatFace"
sketch4.AttachmentOffset = App.Placement(App.Vector(0, 0, 6.5), App.Rotation())
sketch4.addGeometry(Part.LineSegment(App.Vector(117.5, 150, 0), App.Vector(102.5, 150, 0)), False)
sketch4.addGeometry(Part.LineSegment(App.Vector(102.5, 150, 0), App.Vector(102.5, 106, 0)), False)
sketch4.addGeometry(Part.LineSegment(App.Vector(102.5, 106, 0), App.Vector(106, 102.5, 0)), False)
sketch4.addGeometry(Part.LineSegment(App.Vector(106, 102.5, 0), App.Vector(114, 102.5, 0)), False)
sketch4.addGeometry(Part.LineSegment(App.Vector(114, 102.5, 0), App.Vector(117.5, 106, 0)), False)
sketch4.addGeometry(Part.LineSegment(App.Vector(117.5, 106, 0), App.Vector(117.5, 150, 0)), False)
sketch4.addGeometry(Part.Circle(App.Vector(110, 110, 0), App.Vector(0, 0, 1), 1.5), False)
sketch4.addConstraint(Sketcher.Constraint("Coincident", 0, 2, 1, 1))
sketch4.addConstraint(Sketcher.Constraint("Coincident", 1, 2, 2, 1))
sketch4.addConstraint(Sketcher.Constraint("Coincident", 2, 2, 3, 1))
sketch4.addConstraint(Sketcher.Constraint("Coincident", 3, 2, 4, 1))
sketch4.addConstraint(Sketcher.Constraint("Coincident", 4, 2, 5, 1))
sketch4.addConstraint(Sketcher.Constraint("Coincident", 5, 2, 0, 1))
sketch4.addConstraint(Sketcher.Constraint("Horizontal", 0))
sketch4.addConstraint(Sketcher.Constraint("Vertical", 1))
sketch4.addConstraint(Sketcher.Constraint("Horizontal", 3))
sketch4.addConstraint(Sketcher.Constraint("Vertical", 5))
sketch4.addConstraint(Sketcher.Constraint("Perpendicular", 2, 4))
sketch4.addConstraint(Sketcher.Constraint("Horizontal", 1, 2, 4, 2))
sketch4.addConstraint(Sketcher.Constraint("Equal", 2, 4))
sketch4.addConstraint(Sketcher.Constraint("Diameter", 6, Q("3 mm")))
sketch4.addConstraint(Sketcher.Constraint("DistanceX", 3, 1, 3, 2, Q("8 mm")))
sketch4.addConstraint(Sketcher.Constraint("DistanceX", 0, 2, 6, 3, Q("7.5 mm")))
sketch4.addConstraint(Sketcher.Constraint("DistanceY", 2, 2, 6, 3, Q("7.5 mm")))
sketch4.addConstraint(Sketcher.Constraint("DistanceX", 6, 3, 4, 2, Q("7.5 mm")))
sketch4.addConstraint(Sketcher.Constraint("DistanceY", 1, 2, 1, 1, Q("44 mm")))
sketch4.addConstraint(Sketcher.Constraint("DistanceX", -1, 1, 6, 3, Q("110 mm")))
sketch4.addConstraint(Sketcher.Constraint("DistanceY", -1, 1, 6, 3, Q("110 mm")))
sketch4.setExpression("Constraints[13]", "Params.sketch4_diameter")
sketch4.setExpression("Constraints[14]", "Params.sketch4_width")
sketch4.setExpression("Constraints[18]", "Params.sketch4_height")
pad4 = body.newObject("PartDesign::Pad", "Pad003")
pad4.Profile = sketch4
pad4.setExpression("Length", "Params.pad4_length")
pad4.Reversed = True
doc.recompute()

chamfer2 = body.newObject("PartDesign::Chamfer", "Chamfer001")
chamfer2.Base = (pad4, edges_at(pad4, [(102.5, 150, 3.25), (117.5, 150, 3.25)]))
chamfer2.setExpression("Size", "Params.chamfer2_size")

# Sketch on XY plane
sketch5 = body.newObject("Sketcher::SketchObject", "Sketch004")
sketch5.AttachmentSupport = (doc.getObject("XY_Plane"), [""])
sketch5.MapMode = "FlatFace"
sketch5.AttachmentOffset = App.Placement(App.Vector(0, 0, 6.5), App.Rotation())
sketch5.addGeometry(Part.LineSegment(App.Vector(107.5, 1.4, 0), App.Vector(107.5, 0, 0)), False)
sketch5.addGeometry(Part.LineSegment(App.Vector(107.5, 0, 0), App.Vector(112.5, 0, 0)), False)
sketch5.addGeometry(Part.LineSegment(App.Vector(112.5, 0, 0), App.Vector(112.5, 1.4, 0)), False)
sketch5.addGeometry(Part.LineSegment(App.Vector(112.5, 1.4, 0), App.Vector(110, 2.9, 0)), False)
sketch5.addGeometry(Part.LineSegment(App.Vector(110, 2.9, 0), App.Vector(107.5, 1.4, 0)), False)
sketch5.addConstraint(Sketcher.Constraint("Coincident", 0, 2, 1, 1))
sketch5.addConstraint(Sketcher.Constraint("Coincident", 1, 2, 2, 1))
sketch5.addConstraint(Sketcher.Constraint("Coincident", 2, 2, 3, 1))
sketch5.addConstraint(Sketcher.Constraint("Coincident", 3, 2, 4, 1))
sketch5.addConstraint(Sketcher.Constraint("Coincident", 4, 2, 0, 1))
sketch5.addConstraint(Sketcher.Constraint("Vertical", 0))
sketch5.addConstraint(Sketcher.Constraint("Horizontal", 1))
sketch5.addConstraint(Sketcher.Constraint("Vertical", 2))
sketch5.addConstraint(Sketcher.Constraint("PointOnObject", 0, 2, -1))
sketch5.addConstraint(Sketcher.Constraint("Horizontal", 2, 2, 4, 2))
sketch5.addConstraint(Sketcher.Constraint("Equal", 3, 4))
sketch5.addConstraint(Sketcher.Constraint("DistanceX", 1, 1, 1, 2, Q("5 mm")))
sketch5.addConstraint(Sketcher.Constraint("Angle", 3, Q("149.9996 deg")))
sketch5.addConstraint(Sketcher.Constraint("DistanceX", -1, 1, 3, 2, Q("110 mm")))
sketch5.addConstraint(Sketcher.Constraint("DistanceY", 0, 2, 0, 1, Q("1.4434 mm")))
sketch5.setExpression("Constraints[11]", "Params.sketch5_width")
pocket1 = body.newObject("PartDesign::Pocket", "Pocket")
pocket1.Profile = sketch5
pocket1.Type = "ThroughAll"

doc.recompute()
